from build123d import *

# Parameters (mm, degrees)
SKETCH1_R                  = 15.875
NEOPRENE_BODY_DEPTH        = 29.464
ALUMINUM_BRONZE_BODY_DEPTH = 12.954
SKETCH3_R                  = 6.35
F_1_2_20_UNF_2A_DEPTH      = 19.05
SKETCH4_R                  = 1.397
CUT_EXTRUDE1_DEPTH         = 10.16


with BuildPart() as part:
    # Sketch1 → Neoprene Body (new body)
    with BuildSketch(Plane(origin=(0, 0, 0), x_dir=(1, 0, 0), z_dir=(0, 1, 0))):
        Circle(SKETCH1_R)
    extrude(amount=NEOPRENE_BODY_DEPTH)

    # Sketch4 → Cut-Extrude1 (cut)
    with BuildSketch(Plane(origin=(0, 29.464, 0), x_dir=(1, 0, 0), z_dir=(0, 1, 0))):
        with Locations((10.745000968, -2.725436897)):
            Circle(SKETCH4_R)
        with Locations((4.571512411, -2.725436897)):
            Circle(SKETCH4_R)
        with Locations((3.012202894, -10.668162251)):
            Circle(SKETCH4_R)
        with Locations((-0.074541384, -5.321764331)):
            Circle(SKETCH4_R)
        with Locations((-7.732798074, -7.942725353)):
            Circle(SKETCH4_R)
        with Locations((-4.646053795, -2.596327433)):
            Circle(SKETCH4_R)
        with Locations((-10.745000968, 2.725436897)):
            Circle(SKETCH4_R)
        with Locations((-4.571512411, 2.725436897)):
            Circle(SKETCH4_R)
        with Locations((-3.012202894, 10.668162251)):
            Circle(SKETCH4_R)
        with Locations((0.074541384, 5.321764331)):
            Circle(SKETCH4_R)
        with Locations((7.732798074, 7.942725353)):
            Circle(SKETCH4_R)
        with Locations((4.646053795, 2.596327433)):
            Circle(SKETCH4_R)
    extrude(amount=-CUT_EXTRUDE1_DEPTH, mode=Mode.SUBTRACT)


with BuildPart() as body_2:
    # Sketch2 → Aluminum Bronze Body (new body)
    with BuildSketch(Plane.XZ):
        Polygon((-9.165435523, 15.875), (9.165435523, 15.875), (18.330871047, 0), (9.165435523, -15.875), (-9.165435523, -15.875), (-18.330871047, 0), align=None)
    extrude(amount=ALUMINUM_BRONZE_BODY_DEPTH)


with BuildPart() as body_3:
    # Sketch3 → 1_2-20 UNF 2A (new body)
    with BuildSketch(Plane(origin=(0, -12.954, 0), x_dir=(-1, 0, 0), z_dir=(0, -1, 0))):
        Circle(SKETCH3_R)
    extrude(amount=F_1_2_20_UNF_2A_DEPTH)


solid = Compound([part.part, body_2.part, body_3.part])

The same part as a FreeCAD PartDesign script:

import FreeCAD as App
import Part
import Sketcher

V = App.Vector
Q = App.Units.Quantity


def add_polygon(sketch, points):
    """Adds a closed chain of lines whose ends are joined by coincident constraints."""
    first, n = sketch.GeometryCount, len(points)
    for a, b in zip(points, points[1:] + points[:1]):
        sketch.addGeometry(Part.LineSegment(App.Vector(*a, 0), App.Vector(*b, 0)), False)
    for i in range(n):
        sketch.addConstraint(Sketcher.Constraint("Coincident", first + i, 2, first + (i + 1) % n, 1))

doc = App.newDocument("Part")
params = doc.addObject("Spreadsheet::Sheet", "Params")
for row, (alias, value) in enumerate([
    ("sketch1_diameter", "1.25 in"),
    ("pad1_length", "1.16 in"),
    ("sketch2_diameter", "0.11 in"),
    ("pocket1_length", "0.4 in"),
    ("pad2_length", "0.51 in"),
    ("sketch4_diameter", "0.5 in"),
    ("pad3_length", "0.75 in"),
], start=1):
    params.set(f"A{row}", alias)
    params.set(f"B{row}", "=" + value)
    params.setAlias(f"B{row}", alias)

body = doc.addObject("PartDesign::Body", "Body")

# Sketch on XZ plane
sketch1 = doc.addObject("Sketcher::SketchObject", "Sketch")
body.addObject(sketch1)
sketch1.AttachmentSupport = (doc.XZ_Plane, [""])
sketch1.MapMode = "FlatFace"
sketch1.addGeometry(Part.Circle(V(0, 0, 0), V(0, 0, 1), 16), False)
sketch1.addConstraint([
    Sketcher.Constraint("Coincident", 0, 3, -1, 1),
    Sketcher.Constraint("Diameter", 0, Q("1.25 in")),
])
sketch1.setExpression("Constraints[1]", "Params.sketch1_diameter")
pad1 = doc.addObject("PartDesign::Pad", "Pad")
body.addObject(pad1)
pad1.Profile = sketch1
pad1.setExpression("Length", "Params.pad1_length")
pad1.Reversed = True

# Sketch on XZ plane
sketch2 = doc.addObject("Sketcher::SketchObject", "Sketch001")
body.addObject(sketch2)
sketch2.AttachmentSupport = (doc.XZ_Plane, [""])
sketch2.MapMode = "FlatFace"
sketch2.AttachmentOffset = App.Placement(V(0, 0, -1.16 * 25.4), App.Rotation())
sketch2.addGeometry([
    Part.Circle(V(10.7, 2.7, 0), V(0, 0, 1), 1.4),  # 0
    Part.Circle(V(4.6, 2.7, 0), V(0, 0, 1), 1.4),  # 1
    Part.Circle(V(3, 10.7, 0), V(0, 0, 1), 1.4),  # 2
    Part.Circle(V(-0.1, 5.3, 0), V(0, 0, 1), 1.4),  # 3
    Part.Circle(V(-7.7, 7.9, 0), V(0, 0, 1), 1.4),  # 4
    Part.Circle(V(-4.6, 2.6, 0), V(0, 0, 1), 1.4),  # 5
    Part.Circle(V(-10.7, -2.7, 0), V(0, 0, 1), 1.4),  # 6
    Part.Circle(V(-4.6, -2.7, 0), V(0, 0, 1), 1.4),  # 7
    Part.Circle(V(-3, -10.7, 0), V(0, 0, 1), 1.4),  # 8
    Part.Circle(V(0.1, -5.3, 0), V(0, 0, 1), 1.4),  # 9
    Part.Circle(V(7.7, -7.9, 0), V(0, 0, 1), 1.4),  # 10
    Part.Circle(V(4.6, -2.6, 0), V(0, 0, 1), 1.4),  # 11
], False)
sketch2.addConstraint([
    Sketcher.Constraint("Equal", 0, 1),
    Sketcher.Constraint("Equal", 1, 2),
    Sketcher.Constraint("Equal", 2, 3),
    Sketcher.Constraint("Equal", 3, 4),
    Sketcher.Constraint("Equal", 4, 5),
    Sketcher.Constraint("Equal", 5, 6),
    Sketcher.Constraint("Equal", 6, 7),
    Sketcher.Constraint("Equal", 7, 8),
    Sketcher.Constraint("Equal", 8, 9),
    Sketcher.Constraint("Equal", 9, 10),
    Sketcher.Constraint("Equal", 10, 11),
    Sketcher.Constraint("Symmetric", 0, 3, 6, 3, -1, 1),
    Sketcher.Constraint("Symmetric", 1, 3, 7, 3, -1, 1),
    Sketcher.Constraint("Symmetric", 2, 3, 8, 3, -1, 1),
    Sketcher.Constraint("Symmetric", 3, 3, 9, 3, -1, 1),
    Sketcher.Constraint("Symmetric", 4, 3, 10, 3, -1, 1),
    Sketcher.Constraint("Symmetric", 5, 3, 11, 3, -1, 1),
    Sketcher.Constraint("Horizontal", 0, 3, 1, 3),
    Sketcher.Constraint("Diameter", 0, Q("0.11 in")),
    Sketcher.Constraint("DistanceX", -1, 1, 0, 3, Q("10.745001 mm")),
    Sketcher.Constraint("DistanceX", 4, 3, -1, 1, Q("7.732798 mm")),
    Sketcher.Constraint("DistanceX", 2, 3, 0, 3, Q("7.732798 mm")),
    Sketcher.Constraint("DistanceY", 6, 3, 3, 3, Q("8.047201 mm")),
    Sketcher.Constraint("DistanceY", 6, 3, 2, 3, Q("13.393599 mm")),
    Sketcher.Constraint("DistanceX", 3, 3, -1, 1, Q("0.074541 mm")),
    Sketcher.Constraint("DistanceX", 1, 3, 0, 3, Q("6.173489 mm")),
    Sketcher.Constraint("DistanceY", 3, 3, 4, 3, Q("2.620961 mm")),
    Sketcher.Constraint("DistanceY", 1, 3, 4, 3, Q("5.217288 mm")),
    Sketcher.Constraint("DistanceY", 5, 3, 1, 3, Q("0.129109 mm")),
    Sketcher.Constraint("DistanceX", 5, 3, 7, 3, Q("0.074541 mm")),
])
sketch2.setExpression("Constraints[18]", "Params.sketch2_diameter")
pocket1 = doc.addObject("PartDesign::Pocket", "Pocket")
body.addObject(pocket1)
pocket1.Profile = sketch2
pocket1.setExpression("Length", "Params.pocket1_length")
pocket1.Reversed = True
body2 = doc.addObject("PartDesign::Body", "Body001")

# Sketch on XZ plane
sketch3 = doc.addObject("Sketcher::SketchObject", "Sketch002")
body2.addObject(sketch3)
sketch3.AttachmentSupport = (doc.getObject("XZ_Plane001"), [""])
sketch3.MapMode = "FlatFace"
add_polygon(sketch3, [(9, 16), (-9, 16), (-18, 0), (-9, -16), (9, -16), (18, 0)])  # lines 0-5
sketch3.addConstraint([
    Sketcher.Constraint("Horizontal", 0),
    Sketcher.Constraint("Horizontal", 3),
    Sketcher.Constraint("Symmetric", 0, 2, 3, 2, -1, 1),
    Sketcher.Constraint("Symmetric", 1, 2, 4, 2, -1, 1),
    Sketcher.Constraint("PointOnObject", 1, 2, -1),
    Sketcher.Constraint("Parallel", 2, 5),
    Sketcher.Constraint("Vertical", 0, 2, 2, 2),
    Sketcher.Constraint("Angle", 1, Q("-120 deg")),
    Sketcher.Constraint("DistanceY", 2, 2, 0, 2, Q("1.25 in")),
    Sketcher.Constraint("DistanceX", 0, 2, 0, 1, Q("18.330871 mm")),
])
pad2 = doc.addObject("PartDesign::Pad", "Pad001")
body2.addObject(pad2)
pad2.Profile = sketch3
pad2.setExpression("Length", "Params.pad2_length")
body3 = doc.addObject("PartDesign::Body", "Body002")

# Sketch on XZ plane
sketch4 = doc.addObject("Sketcher::SketchObject", "Sketch003")
body3.addObject(sketch4)
sketch4.AttachmentSupport = (doc.getObject("XZ_Plane002"), [""])
sketch4.MapMode = "FlatFace"
sketch4.AttachmentOffset = App.Placement(V(0, 0, 0.51 * 25.4), App.Rotation())
sketch4.addGeometry(Part.Circle(V(0, 0, 0), V(0, 0, 1), 6), False)
sketch4.addConstraint([
    Sketcher.Constraint("Coincident", 0, 3, -1, 1),
    Sketcher.Constraint("Diameter", 0, Q("0.5 in")),
])
sketch4.setExpression("Constraints[1]", "Params.sketch4_diameter")
pad3 = doc.addObject("PartDesign::Pad", "Pad002")
body3.addObject(pad3)
pad3.Profile = sketch4
pad3.setExpression("Length", "Params.pad3_length")

doc.recompute()
